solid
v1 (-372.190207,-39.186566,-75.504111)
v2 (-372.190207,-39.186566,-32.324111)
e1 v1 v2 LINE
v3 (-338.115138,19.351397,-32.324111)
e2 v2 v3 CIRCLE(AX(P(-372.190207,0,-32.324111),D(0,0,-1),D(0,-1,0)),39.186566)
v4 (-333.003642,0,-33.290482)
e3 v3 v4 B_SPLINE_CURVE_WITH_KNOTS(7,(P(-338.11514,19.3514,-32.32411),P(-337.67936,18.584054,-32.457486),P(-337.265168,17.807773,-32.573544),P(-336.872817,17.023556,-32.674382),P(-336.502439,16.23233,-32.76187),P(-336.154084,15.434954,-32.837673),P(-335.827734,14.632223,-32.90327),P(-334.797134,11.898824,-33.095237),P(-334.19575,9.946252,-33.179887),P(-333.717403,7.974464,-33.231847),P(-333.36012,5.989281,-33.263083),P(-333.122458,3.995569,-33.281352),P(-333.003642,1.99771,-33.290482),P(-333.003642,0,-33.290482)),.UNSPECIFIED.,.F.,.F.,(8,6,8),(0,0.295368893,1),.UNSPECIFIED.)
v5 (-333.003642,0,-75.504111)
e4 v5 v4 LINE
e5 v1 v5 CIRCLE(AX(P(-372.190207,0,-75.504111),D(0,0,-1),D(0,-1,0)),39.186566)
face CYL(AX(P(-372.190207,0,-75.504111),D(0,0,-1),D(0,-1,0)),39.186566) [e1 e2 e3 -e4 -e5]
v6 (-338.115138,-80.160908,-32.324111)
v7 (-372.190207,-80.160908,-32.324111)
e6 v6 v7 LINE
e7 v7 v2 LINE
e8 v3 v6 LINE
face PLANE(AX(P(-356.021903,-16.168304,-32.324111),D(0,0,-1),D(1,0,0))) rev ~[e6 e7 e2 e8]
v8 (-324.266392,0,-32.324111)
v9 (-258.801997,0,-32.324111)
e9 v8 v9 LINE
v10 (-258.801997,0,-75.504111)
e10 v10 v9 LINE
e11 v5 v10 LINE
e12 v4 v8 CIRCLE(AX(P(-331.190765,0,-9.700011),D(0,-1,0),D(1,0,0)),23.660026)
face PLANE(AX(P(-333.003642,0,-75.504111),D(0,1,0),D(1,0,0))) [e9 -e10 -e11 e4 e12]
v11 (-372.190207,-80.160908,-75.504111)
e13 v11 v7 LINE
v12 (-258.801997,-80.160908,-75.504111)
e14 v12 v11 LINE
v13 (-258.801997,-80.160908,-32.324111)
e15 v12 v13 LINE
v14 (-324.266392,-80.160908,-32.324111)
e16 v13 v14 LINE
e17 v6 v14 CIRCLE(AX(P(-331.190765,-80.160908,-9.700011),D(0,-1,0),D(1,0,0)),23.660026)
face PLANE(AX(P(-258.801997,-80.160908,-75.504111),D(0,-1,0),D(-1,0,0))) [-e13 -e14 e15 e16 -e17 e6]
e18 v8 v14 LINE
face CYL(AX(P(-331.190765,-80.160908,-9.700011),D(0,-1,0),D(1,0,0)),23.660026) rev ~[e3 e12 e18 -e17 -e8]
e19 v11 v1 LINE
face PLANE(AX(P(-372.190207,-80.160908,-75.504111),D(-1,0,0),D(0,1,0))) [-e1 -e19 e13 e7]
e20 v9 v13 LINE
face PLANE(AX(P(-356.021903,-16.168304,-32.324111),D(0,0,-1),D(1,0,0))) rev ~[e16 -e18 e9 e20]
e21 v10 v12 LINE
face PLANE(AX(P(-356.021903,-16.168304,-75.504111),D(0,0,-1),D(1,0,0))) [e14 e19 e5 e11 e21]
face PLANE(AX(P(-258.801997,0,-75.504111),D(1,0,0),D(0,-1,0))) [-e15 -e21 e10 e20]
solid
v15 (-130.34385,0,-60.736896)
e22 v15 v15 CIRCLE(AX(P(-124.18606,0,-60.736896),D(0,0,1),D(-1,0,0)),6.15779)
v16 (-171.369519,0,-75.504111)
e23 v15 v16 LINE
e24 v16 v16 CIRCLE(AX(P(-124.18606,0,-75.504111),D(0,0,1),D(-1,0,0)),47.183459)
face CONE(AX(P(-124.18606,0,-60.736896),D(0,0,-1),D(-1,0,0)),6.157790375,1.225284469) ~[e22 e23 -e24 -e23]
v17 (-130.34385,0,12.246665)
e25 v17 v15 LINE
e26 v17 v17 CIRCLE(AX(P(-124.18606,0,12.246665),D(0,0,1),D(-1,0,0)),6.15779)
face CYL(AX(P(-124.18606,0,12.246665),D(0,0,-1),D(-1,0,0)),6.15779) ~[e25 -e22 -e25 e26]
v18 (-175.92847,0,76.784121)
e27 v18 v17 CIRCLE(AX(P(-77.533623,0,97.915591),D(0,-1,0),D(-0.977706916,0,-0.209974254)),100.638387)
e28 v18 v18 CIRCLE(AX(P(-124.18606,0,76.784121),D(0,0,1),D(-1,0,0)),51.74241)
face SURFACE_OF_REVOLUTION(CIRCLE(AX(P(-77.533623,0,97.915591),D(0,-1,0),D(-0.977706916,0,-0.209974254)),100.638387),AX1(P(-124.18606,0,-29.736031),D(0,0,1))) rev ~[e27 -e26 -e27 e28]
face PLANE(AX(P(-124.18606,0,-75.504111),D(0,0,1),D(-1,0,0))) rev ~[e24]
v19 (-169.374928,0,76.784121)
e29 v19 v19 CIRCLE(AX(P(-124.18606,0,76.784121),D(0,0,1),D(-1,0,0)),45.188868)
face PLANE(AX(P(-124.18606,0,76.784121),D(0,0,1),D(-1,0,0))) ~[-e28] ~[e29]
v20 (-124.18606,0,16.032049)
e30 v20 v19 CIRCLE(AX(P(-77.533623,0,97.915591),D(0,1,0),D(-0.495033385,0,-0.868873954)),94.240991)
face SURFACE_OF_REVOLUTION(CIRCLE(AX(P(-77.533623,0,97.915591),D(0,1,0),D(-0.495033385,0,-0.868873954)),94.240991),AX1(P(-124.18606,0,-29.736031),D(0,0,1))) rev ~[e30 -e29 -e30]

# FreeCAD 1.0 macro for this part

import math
import FreeCAD as App
import Part
import Sketcher

V = App.Vector
Q = App.Units.Quantity

doc = App.newDocument("Part")
body = doc.addObject("PartDesign::Body", "Body")

# Sketch on XZ plane
sketch1 = body.newObject("Sketcher::SketchObject", "Sketch")
sketch1.AttachmentSupport = (doc.getObject("XZ_Plane"), [""])
sketch1.MapMode = "FlatFace"
sketch1.addGeometry([
    Part.LineSegment(V(-171.369519, -75.504111, 0), V(-124.18606, -75.504111, 0)),  # 0
    Part.LineSegment(V(-124.18606, -75.504111, 0), V(-124.18606, 16.032049, 0)),  # 1
    Part.ArcOfCircle(Part.Circle(V(-77.533623, 97.915591, 0), V(0, 0, 1), 94.240991), math.radians(-167.042513), math.radians(-119.671952)),  # 2
    Part.LineSegment(V(-169.374928, 76.784121, 0), V(-175.92847, 76.784121, 0)),  # 3
    Part.ArcOfCircle(Part.Circle(V(-77.533623, 97.915591, 0), V(0, 0, 1), 100.638387), math.radians(-167.879157), math.radians(-121.651571)),  # 4
    Part.LineSegment(V(-130.34385, 12.246665, 0), V(-130.34385, -60.736896, 0)),  # 5
    Part.LineSegment(V(-130.34385, -60.736896, 0), V(-171.369519, -75.504111, 0)),  # 6
], False)
sketch1.addGeometry(Part.LineSegment(V(-124.18606, -75.504111, 0), V(-124.18606, 97.915591, 0)), True)  # axis
sketch1.addConstraint([
    Sketcher.Constraint("Coincident", 0, 2, 1, 1),
    Sketcher.Constraint("Coincident", 1, 2, 2, 2),
    Sketcher.Constraint("Coincident", 2, 1, 3, 1),
    Sketcher.Constraint("Coincident", 3, 2, 4, 1),
    Sketcher.Constraint("Coincident", 4, 2, 5, 1),
    Sketcher.Constraint("Coincident", 5, 2, 6, 1),
    Sketcher.Constraint("Coincident", 6, 2, 0, 1),
    Sketcher.Constraint("Horizontal", 0),
    Sketcher.Constraint("Vertical", 1),
    Sketcher.Constraint("Horizontal", 3),
    Sketcher.Constraint("Vertical", 5),
    Sketcher.Constraint("Vertical", 7),
    Sketcher.Constraint("Coincident", 4, 3, 2, 3),
    Sketcher.Constraint("Coincident", 7, 1, 0, 2),
    Sketcher.Constraint("Horizontal", 4, 3, 7, 2),
    Sketcher.Constraint("Radius", 2, Q("94.240991 mm")),
    Sketcher.Constraint("DistanceY", 7, 1, 7, 2, Q("173.419701 mm")),
    Sketcher.Constraint("Radius", 4, Q("100.638387 mm")),
    Sketcher.Constraint("DistanceX", 0, 1, 0, 2, Q("47.183459 mm")),
    Sketcher.Constraint("DistanceX", 3, 2, 3, 1, Q("6.553542 mm")),
    Sketcher.Constraint("DistanceY", 1, 1, 1, 2, Q("91.536159 mm")),
    Sketcher.Constraint("DistanceY", 5, 2, 5, 1, Q("72.983561 mm")),
    Sketcher.Constraint("DistanceY", -1, 1, 2, 3, Q("97.915591 mm")),
    Sketcher.Constraint("DistanceX", 0, 2, -1, 1, Q("124.18606 mm")),
    Sketcher.Constraint("DistanceX", 4, 2, -1, 1, Q("130.34385 mm")),
])
revolution = body.newObject("PartDesign::Revolution", "Revolution")
revolution.Profile = sketch1
revolution.ReferenceAxis = (sketch1, ["Axis0"])
revolution.Angle = 360
body2 = doc.addObject("PartDesign::Body", "Body001")

# Sketch on XY plane
sketch2 = body2.newObject("Sketcher::SketchObject", "Sketch001")
sketch2.AttachmentSupport = (doc.getObject("XY_Plane001"), [""])
sketch2.MapMode = "FlatFace"
sketch2.AttachmentOffset = App.Placement(V(0, 0, -75.504111), App.Rotation())
sketch2.addGeometry([
    Part.ArcOfCircle(Part.Circle(V(-372, 0, 0), V(0, 0, 1), 39), math.radians(0), math.radians(270)),  # 0
    Part.LineSegment(V(-333, 0, 0), V(-259, 0, 0)),  # 1
    Part.LineSegment(V(-259, 0, 0), V(-259, -80, 0)),  # 2
    Part.LineSegment(V(-259, -80, 0), V(-372, -80, 0)),  # 3
    Part.LineSegment(V(-372, -80, 0), V(-372, -39, 0)),  # 4
], False)
sketch2.addConstraint([
    Sketcher.Constraint("Coincident", 0, 1, 1, 1),
    Sketcher.Constraint("Coincident", 1, 2, 2, 1),
    Sketcher.Constraint("Coincident", 2, 2, 3, 1),
    Sketcher.Constraint("Coincident", 3, 2, 4, 1),
    Sketcher.Constraint("Coincident", 4, 2, 0, 2),
    Sketcher.Constraint("Horizontal", 1),
    Sketcher.Constraint("Vertical", 2),
    Sketcher.Constraint("Horizontal", 3),
    Sketcher.Constraint("Vertical", 4),
    Sketcher.Constraint("PointOnObject", 0, 3, -1),
    Sketcher.Constraint("PointOnObject", 0, 1, -1),
    Sketcher.Constraint("Vertical", 0, 3, 3, 2),
    Sketcher.Constraint("Radius", 0, Q("39.186566 mm")),
    Sketcher.Constraint("DistanceX", 3, 2, 3, 1, Q("113.388211 mm")),
    Sketcher.Constraint("DistanceY", 2, 2, 2, 1, Q("80.160908 mm")),
    Sketcher.Constraint("DistanceX", 0, 1, -1, 1, Q("333.003642 mm")),
])
pad1 = body2.newObject("PartDesign::Pad", "Pad")
pad1.Profile = sketch2
pad1.Length = Q("1.7 in")

# Sketch on XZ plane
sketch3 = body2.newObject("Sketcher::SketchObject", "Sketch002")
sketch3.AttachmentSupport = (doc.getObject("XZ_Plane001"), [""])
sketch3.MapMode = "FlatFace"
sketch3.AttachmentOffset = App.Placement(V(0, 0, 80.160908), App.Rotation())
sketch3.addGeometry(Part.Circle(V(-331, -10, 0), V(0, 0, 1), 24), False)
sketch3.addConstraint([
    Sketcher.Constraint("Diameter", 0, Q("47.320051 mm")),
    Sketcher.Constraint("DistanceY", 0, 3, -1, 1, Q("9.700011 mm")),
    Sketcher.Constraint("DistanceX", 0, 3, -1, 1, Q("331.190765 mm")),
])
pocket1 = body2.newObject("PartDesign::Pocket", "Pocket")
pocket1.Profile = sketch3
pocket1.Length = Q("7.8 in")

doc.recompute()
